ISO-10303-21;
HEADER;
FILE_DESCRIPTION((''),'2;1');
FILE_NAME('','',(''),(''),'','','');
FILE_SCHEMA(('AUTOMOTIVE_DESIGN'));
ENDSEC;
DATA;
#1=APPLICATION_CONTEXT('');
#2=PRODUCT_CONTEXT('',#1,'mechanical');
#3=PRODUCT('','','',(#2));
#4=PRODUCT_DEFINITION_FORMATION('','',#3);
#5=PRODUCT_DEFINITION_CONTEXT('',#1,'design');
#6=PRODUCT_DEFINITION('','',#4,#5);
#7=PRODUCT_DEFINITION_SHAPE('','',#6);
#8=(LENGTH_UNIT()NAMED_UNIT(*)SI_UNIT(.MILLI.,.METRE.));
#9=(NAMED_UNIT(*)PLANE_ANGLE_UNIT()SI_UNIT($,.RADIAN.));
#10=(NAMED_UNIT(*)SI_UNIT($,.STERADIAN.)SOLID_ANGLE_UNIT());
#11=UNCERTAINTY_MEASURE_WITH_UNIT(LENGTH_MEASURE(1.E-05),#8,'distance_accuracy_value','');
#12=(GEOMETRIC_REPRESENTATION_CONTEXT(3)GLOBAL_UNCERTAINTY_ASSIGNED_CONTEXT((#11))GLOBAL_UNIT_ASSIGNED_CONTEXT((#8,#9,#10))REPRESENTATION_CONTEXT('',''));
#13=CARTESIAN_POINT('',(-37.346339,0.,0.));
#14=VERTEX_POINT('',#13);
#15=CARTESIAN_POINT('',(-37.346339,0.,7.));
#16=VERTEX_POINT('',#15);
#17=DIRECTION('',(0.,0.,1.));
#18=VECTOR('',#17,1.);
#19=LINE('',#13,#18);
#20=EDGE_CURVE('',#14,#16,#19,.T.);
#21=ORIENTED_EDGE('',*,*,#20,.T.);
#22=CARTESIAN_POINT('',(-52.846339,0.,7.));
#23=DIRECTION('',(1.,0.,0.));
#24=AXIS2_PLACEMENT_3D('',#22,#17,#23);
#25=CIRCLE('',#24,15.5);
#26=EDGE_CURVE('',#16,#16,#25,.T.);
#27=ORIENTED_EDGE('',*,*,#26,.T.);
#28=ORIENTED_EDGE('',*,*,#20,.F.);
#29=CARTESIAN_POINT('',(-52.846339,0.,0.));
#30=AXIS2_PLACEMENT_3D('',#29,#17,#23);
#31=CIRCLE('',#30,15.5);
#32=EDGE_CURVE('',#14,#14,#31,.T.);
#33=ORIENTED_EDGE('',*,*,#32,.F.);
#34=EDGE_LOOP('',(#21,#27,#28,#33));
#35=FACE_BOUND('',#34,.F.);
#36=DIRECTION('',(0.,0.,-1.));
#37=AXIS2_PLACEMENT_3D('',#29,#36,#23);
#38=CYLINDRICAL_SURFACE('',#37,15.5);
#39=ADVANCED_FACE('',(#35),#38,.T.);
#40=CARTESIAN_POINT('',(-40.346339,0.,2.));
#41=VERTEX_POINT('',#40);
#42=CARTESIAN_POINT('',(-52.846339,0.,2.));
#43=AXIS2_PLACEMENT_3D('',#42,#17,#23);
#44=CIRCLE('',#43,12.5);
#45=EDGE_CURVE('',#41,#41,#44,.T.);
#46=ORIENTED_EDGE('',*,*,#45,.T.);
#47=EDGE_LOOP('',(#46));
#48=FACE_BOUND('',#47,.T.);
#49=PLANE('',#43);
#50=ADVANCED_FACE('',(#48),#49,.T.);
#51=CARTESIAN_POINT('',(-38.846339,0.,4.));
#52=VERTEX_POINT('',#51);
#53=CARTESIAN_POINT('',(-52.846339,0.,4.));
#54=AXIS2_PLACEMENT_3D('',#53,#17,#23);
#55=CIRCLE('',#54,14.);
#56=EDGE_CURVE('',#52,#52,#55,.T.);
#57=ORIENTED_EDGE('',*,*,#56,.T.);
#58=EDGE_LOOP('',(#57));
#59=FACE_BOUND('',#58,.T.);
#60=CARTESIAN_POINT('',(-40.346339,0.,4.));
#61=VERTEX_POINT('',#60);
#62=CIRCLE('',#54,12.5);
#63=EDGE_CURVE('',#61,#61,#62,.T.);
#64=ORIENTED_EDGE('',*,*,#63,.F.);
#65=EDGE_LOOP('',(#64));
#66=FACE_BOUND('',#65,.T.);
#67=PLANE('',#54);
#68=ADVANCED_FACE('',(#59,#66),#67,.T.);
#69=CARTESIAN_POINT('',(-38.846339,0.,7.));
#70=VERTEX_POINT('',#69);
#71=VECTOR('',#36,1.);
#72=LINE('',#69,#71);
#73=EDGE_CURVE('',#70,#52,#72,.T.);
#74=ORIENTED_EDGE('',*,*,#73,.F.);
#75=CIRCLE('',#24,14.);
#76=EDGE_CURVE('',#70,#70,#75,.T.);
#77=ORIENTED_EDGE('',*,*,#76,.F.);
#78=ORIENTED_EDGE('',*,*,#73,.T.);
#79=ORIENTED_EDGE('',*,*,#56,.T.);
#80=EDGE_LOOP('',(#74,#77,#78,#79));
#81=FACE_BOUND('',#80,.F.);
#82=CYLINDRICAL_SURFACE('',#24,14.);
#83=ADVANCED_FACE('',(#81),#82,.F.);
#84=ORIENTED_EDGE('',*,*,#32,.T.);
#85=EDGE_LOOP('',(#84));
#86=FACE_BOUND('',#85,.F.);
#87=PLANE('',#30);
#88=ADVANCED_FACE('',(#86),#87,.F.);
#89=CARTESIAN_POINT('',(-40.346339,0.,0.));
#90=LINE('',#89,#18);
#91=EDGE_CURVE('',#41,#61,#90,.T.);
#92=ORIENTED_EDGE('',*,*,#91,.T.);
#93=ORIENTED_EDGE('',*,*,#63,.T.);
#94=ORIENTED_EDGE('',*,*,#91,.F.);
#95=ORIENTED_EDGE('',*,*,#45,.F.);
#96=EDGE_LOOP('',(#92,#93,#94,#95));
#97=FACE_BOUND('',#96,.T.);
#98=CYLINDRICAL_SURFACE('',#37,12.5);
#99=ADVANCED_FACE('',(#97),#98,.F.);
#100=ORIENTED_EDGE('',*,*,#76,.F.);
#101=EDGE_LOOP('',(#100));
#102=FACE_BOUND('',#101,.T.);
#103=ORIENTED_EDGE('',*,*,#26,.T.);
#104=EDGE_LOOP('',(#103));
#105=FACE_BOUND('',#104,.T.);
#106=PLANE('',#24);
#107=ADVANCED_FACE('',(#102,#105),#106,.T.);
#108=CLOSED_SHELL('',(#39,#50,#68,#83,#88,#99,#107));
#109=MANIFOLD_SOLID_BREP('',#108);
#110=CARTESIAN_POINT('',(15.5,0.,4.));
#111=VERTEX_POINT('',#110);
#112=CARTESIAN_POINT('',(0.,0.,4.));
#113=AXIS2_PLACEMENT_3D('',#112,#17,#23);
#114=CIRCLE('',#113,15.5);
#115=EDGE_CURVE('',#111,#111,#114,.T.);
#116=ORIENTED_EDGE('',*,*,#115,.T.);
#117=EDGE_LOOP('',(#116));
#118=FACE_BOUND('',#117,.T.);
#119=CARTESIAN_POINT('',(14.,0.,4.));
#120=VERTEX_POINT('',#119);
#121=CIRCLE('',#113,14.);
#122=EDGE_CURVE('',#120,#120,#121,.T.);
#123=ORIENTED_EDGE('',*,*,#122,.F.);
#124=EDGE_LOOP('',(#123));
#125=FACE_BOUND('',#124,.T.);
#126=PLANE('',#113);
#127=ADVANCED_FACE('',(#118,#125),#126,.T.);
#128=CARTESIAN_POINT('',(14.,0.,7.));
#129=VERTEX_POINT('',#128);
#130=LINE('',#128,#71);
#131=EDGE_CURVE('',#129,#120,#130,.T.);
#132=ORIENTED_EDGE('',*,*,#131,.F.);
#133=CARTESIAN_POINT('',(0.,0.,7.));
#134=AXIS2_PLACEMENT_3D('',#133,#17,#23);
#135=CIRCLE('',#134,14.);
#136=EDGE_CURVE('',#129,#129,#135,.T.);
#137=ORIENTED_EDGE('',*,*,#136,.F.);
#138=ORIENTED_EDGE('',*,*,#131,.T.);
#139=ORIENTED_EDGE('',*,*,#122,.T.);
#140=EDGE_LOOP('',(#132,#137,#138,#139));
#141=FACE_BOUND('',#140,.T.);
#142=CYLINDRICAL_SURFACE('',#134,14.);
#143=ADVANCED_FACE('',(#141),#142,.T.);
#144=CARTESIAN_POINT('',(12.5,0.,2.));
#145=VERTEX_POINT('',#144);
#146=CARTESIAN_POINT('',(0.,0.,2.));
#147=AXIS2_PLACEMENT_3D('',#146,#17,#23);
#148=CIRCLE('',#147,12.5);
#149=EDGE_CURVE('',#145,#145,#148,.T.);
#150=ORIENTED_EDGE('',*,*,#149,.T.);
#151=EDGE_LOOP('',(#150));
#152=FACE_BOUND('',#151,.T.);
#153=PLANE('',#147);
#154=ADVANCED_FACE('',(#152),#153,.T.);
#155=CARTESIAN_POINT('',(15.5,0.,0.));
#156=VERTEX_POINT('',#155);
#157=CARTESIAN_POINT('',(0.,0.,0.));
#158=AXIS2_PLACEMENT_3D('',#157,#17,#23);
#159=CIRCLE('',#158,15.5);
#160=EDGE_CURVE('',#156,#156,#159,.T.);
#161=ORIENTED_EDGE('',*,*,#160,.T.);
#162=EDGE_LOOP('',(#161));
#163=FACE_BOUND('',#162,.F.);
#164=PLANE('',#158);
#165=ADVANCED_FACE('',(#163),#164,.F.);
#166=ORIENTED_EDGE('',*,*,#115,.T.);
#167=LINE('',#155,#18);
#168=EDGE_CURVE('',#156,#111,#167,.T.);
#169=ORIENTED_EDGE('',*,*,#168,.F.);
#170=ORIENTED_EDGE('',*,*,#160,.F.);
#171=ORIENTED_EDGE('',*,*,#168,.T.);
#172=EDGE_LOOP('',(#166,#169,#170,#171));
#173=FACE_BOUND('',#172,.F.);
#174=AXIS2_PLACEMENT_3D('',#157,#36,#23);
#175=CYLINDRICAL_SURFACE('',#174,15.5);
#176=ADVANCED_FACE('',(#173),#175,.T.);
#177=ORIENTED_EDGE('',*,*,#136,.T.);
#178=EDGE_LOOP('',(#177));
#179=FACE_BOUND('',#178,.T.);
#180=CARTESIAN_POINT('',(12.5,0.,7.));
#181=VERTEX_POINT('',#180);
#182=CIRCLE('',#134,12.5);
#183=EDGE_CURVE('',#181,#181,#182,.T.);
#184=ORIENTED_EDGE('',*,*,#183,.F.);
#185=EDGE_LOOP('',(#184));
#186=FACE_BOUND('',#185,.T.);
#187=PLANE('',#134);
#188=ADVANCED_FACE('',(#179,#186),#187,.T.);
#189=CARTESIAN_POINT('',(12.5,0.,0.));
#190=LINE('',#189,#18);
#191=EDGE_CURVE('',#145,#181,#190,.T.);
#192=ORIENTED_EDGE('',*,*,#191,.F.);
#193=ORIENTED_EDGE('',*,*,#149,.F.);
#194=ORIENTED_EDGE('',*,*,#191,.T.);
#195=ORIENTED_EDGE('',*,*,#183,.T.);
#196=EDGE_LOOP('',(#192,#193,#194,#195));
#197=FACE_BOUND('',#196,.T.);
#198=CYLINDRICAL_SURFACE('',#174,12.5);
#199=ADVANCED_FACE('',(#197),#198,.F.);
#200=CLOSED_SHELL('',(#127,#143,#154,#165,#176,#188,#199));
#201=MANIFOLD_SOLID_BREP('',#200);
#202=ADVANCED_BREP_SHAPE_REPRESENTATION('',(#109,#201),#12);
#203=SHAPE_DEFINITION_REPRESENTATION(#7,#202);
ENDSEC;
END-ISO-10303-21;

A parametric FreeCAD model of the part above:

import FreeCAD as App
import Part
import Sketcher

V = App.Vector
Q = App.Units.Quantity

doc = App.newDocument("Part")
body = doc.addObject("PartDesign::Body", "Body")
body.AllowCompound = True

# Sketch on XY plane
sketch1 = body.newObject("Sketcher::SketchObject", "Sketch")
sketch1.AttachmentSupport = (doc.getObject("XY_Plane"), [""])
sketch1.MapMode = "FlatFace"
sketch1.addGeometry([
    Part.Circle(V(-53, 0, 0), V(0, 0, 1), 16),
    Part.Circle(V(-53, 0, 0), V(0, 0, 1), 12),
    Part.Circle(V(0, 0, 0), V(0, 0, 1), 16),
    Part.Circle(V(0, 0, 0), V(0, 0, 1), 12),
], False)
sketch1.addConstraint([
    Sketcher.Constraint("Coincident", 2, 3, -1, 1),
    Sketcher.Constraint("Coincident", 3, 3, -1, 1),
    Sketcher.Constraint("Coincident", 1, 3, 0, 3),
    Sketcher.Constraint("Equal", 0, 2),
    Sketcher.Constraint("Equal", 1, 3),
    Sketcher.Constraint("PointOnObject", 0, 3, -1),
    Sketcher.Constraint("Diameter", 0, Q("31 mm")),
    Sketcher.Constraint("Diameter", 1, Q("25 mm")),
    Sketcher.Constraint("DistanceX", 0, 3, -1, 1, Q("52.846339 mm")),
])
pad1 = body.newObject("PartDesign::Pad", "Pad")
pad1.Profile = sketch1
pad1.Length = 7

# Sketch on XY plane
sketch2 = body.newObject("Sketcher::SketchObject", "Sketch001")
sketch2.AttachmentSupport = (doc.getObject("XY_Plane"), [""])
sketch2.MapMode = "FlatFace"
sketch2.addGeometry([
    Part.Circle(V(-53, 0, 0), V(0, 0, 1), 12),
    Part.Circle(V(0, 0, 0), V(0, 0, 1), 12),
], False)
sketch2.addConstraint([
    Sketcher.Constraint("Coincident", 1, 3, -1, 1),
    Sketcher.Constraint("Equal", 0, 1),
    Sketcher.Constraint("PointOnObject", 0, 3, -1),
    Sketcher.Constraint("Diameter", 0, Q("25 mm")),
    Sketcher.Constraint("DistanceX", 0, 3, -1, 1, Q("52.846339 mm")),
])
pad2 = body.newObject("PartDesign::Pad", "Pad001")
pad2.Profile = sketch2
pad2.Length = 2

# Sketch on XY plane
sketch3 = body.newObject("Sketcher::SketchObject", "Sketch002")
sketch3.AttachmentSupport = (doc.getObject("XY_Plane"), [""])
sketch3.MapMode = "FlatFace"
sketch3.AttachmentOffset = App.Placement(V(0, 0, 7), App.Rotation())
sketch3.addGeometry([
    Part.Circle(V(-53, 0, 0), V(0, 0, 1), 14),
    Part.Circle(V(-53, 0, 0), V(0, 0, 1), 12),
    Part.Circle(V(0, 0, 0), V(0, 0, 1), 16),
    Part.Circle(V(0, 0, 0), V(0, 0, 1), 14),
], False)
sketch3.addConstraint([
    Sketcher.Constraint("Coincident", 2, 3, -1, 1),
    Sketcher.Constraint("Coincident", 3, 3, -1, 1),
    Sketcher.Constraint("Coincident", 1, 3, 0, 3),
    Sketcher.Constraint("Equal", 0, 3),
    Sketcher.Constraint("PointOnObject", 0, 3, -1),
    Sketcher.Constraint("Diameter", 0, Q("28 mm")),
    Sketcher.Constraint("Diameter", 1, Q("25 mm")),
    Sketcher.Constraint("Diameter", 2, Q("31 mm")),
    Sketcher.Constraint("DistanceX", 0, 3, -1, 1, Q("52.846339 mm")),
])
pocket1 = body.newObject("PartDesign::Pocket", "Pocket")
pocket1.Profile = sketch3
pocket1.Length = 3

# Sketch on XY plane
sketch4 = body.newObject("Sketcher::SketchObject", "Sketch003")
sketch4.AttachmentSupport = (doc.getObject("XY_Plane"), [""])
sketch4.MapMode = "FlatFace"
sketch4.AttachmentOffset = App.Placement(V(0, 0, 7), App.Rotation())
sketch4.addGeometry([
    Part.Circle(V(0, 0, 0), V(0, 0, 1), 16),
    Part.Circle(V(0, 0, 0), V(0, 0, 1), 14),
], False)
sketch4.addConstraint([
    Sketcher.Constraint("Coincident", 0, 3, -1, 1),
    Sketcher.Constraint("Coincident", 1, 3, -1, 1),
    Sketcher.Constraint("Diameter", 0, Q("31 mm")),
    Sketcher.Constraint("Diameter", 1, Q("28 mm")),
])
pocket2 = body.newObject("PartDesign::Pocket", "Pocket001")
pocket2.Profile = sketch4
pocket2.Length = 3

doc.recompute()
